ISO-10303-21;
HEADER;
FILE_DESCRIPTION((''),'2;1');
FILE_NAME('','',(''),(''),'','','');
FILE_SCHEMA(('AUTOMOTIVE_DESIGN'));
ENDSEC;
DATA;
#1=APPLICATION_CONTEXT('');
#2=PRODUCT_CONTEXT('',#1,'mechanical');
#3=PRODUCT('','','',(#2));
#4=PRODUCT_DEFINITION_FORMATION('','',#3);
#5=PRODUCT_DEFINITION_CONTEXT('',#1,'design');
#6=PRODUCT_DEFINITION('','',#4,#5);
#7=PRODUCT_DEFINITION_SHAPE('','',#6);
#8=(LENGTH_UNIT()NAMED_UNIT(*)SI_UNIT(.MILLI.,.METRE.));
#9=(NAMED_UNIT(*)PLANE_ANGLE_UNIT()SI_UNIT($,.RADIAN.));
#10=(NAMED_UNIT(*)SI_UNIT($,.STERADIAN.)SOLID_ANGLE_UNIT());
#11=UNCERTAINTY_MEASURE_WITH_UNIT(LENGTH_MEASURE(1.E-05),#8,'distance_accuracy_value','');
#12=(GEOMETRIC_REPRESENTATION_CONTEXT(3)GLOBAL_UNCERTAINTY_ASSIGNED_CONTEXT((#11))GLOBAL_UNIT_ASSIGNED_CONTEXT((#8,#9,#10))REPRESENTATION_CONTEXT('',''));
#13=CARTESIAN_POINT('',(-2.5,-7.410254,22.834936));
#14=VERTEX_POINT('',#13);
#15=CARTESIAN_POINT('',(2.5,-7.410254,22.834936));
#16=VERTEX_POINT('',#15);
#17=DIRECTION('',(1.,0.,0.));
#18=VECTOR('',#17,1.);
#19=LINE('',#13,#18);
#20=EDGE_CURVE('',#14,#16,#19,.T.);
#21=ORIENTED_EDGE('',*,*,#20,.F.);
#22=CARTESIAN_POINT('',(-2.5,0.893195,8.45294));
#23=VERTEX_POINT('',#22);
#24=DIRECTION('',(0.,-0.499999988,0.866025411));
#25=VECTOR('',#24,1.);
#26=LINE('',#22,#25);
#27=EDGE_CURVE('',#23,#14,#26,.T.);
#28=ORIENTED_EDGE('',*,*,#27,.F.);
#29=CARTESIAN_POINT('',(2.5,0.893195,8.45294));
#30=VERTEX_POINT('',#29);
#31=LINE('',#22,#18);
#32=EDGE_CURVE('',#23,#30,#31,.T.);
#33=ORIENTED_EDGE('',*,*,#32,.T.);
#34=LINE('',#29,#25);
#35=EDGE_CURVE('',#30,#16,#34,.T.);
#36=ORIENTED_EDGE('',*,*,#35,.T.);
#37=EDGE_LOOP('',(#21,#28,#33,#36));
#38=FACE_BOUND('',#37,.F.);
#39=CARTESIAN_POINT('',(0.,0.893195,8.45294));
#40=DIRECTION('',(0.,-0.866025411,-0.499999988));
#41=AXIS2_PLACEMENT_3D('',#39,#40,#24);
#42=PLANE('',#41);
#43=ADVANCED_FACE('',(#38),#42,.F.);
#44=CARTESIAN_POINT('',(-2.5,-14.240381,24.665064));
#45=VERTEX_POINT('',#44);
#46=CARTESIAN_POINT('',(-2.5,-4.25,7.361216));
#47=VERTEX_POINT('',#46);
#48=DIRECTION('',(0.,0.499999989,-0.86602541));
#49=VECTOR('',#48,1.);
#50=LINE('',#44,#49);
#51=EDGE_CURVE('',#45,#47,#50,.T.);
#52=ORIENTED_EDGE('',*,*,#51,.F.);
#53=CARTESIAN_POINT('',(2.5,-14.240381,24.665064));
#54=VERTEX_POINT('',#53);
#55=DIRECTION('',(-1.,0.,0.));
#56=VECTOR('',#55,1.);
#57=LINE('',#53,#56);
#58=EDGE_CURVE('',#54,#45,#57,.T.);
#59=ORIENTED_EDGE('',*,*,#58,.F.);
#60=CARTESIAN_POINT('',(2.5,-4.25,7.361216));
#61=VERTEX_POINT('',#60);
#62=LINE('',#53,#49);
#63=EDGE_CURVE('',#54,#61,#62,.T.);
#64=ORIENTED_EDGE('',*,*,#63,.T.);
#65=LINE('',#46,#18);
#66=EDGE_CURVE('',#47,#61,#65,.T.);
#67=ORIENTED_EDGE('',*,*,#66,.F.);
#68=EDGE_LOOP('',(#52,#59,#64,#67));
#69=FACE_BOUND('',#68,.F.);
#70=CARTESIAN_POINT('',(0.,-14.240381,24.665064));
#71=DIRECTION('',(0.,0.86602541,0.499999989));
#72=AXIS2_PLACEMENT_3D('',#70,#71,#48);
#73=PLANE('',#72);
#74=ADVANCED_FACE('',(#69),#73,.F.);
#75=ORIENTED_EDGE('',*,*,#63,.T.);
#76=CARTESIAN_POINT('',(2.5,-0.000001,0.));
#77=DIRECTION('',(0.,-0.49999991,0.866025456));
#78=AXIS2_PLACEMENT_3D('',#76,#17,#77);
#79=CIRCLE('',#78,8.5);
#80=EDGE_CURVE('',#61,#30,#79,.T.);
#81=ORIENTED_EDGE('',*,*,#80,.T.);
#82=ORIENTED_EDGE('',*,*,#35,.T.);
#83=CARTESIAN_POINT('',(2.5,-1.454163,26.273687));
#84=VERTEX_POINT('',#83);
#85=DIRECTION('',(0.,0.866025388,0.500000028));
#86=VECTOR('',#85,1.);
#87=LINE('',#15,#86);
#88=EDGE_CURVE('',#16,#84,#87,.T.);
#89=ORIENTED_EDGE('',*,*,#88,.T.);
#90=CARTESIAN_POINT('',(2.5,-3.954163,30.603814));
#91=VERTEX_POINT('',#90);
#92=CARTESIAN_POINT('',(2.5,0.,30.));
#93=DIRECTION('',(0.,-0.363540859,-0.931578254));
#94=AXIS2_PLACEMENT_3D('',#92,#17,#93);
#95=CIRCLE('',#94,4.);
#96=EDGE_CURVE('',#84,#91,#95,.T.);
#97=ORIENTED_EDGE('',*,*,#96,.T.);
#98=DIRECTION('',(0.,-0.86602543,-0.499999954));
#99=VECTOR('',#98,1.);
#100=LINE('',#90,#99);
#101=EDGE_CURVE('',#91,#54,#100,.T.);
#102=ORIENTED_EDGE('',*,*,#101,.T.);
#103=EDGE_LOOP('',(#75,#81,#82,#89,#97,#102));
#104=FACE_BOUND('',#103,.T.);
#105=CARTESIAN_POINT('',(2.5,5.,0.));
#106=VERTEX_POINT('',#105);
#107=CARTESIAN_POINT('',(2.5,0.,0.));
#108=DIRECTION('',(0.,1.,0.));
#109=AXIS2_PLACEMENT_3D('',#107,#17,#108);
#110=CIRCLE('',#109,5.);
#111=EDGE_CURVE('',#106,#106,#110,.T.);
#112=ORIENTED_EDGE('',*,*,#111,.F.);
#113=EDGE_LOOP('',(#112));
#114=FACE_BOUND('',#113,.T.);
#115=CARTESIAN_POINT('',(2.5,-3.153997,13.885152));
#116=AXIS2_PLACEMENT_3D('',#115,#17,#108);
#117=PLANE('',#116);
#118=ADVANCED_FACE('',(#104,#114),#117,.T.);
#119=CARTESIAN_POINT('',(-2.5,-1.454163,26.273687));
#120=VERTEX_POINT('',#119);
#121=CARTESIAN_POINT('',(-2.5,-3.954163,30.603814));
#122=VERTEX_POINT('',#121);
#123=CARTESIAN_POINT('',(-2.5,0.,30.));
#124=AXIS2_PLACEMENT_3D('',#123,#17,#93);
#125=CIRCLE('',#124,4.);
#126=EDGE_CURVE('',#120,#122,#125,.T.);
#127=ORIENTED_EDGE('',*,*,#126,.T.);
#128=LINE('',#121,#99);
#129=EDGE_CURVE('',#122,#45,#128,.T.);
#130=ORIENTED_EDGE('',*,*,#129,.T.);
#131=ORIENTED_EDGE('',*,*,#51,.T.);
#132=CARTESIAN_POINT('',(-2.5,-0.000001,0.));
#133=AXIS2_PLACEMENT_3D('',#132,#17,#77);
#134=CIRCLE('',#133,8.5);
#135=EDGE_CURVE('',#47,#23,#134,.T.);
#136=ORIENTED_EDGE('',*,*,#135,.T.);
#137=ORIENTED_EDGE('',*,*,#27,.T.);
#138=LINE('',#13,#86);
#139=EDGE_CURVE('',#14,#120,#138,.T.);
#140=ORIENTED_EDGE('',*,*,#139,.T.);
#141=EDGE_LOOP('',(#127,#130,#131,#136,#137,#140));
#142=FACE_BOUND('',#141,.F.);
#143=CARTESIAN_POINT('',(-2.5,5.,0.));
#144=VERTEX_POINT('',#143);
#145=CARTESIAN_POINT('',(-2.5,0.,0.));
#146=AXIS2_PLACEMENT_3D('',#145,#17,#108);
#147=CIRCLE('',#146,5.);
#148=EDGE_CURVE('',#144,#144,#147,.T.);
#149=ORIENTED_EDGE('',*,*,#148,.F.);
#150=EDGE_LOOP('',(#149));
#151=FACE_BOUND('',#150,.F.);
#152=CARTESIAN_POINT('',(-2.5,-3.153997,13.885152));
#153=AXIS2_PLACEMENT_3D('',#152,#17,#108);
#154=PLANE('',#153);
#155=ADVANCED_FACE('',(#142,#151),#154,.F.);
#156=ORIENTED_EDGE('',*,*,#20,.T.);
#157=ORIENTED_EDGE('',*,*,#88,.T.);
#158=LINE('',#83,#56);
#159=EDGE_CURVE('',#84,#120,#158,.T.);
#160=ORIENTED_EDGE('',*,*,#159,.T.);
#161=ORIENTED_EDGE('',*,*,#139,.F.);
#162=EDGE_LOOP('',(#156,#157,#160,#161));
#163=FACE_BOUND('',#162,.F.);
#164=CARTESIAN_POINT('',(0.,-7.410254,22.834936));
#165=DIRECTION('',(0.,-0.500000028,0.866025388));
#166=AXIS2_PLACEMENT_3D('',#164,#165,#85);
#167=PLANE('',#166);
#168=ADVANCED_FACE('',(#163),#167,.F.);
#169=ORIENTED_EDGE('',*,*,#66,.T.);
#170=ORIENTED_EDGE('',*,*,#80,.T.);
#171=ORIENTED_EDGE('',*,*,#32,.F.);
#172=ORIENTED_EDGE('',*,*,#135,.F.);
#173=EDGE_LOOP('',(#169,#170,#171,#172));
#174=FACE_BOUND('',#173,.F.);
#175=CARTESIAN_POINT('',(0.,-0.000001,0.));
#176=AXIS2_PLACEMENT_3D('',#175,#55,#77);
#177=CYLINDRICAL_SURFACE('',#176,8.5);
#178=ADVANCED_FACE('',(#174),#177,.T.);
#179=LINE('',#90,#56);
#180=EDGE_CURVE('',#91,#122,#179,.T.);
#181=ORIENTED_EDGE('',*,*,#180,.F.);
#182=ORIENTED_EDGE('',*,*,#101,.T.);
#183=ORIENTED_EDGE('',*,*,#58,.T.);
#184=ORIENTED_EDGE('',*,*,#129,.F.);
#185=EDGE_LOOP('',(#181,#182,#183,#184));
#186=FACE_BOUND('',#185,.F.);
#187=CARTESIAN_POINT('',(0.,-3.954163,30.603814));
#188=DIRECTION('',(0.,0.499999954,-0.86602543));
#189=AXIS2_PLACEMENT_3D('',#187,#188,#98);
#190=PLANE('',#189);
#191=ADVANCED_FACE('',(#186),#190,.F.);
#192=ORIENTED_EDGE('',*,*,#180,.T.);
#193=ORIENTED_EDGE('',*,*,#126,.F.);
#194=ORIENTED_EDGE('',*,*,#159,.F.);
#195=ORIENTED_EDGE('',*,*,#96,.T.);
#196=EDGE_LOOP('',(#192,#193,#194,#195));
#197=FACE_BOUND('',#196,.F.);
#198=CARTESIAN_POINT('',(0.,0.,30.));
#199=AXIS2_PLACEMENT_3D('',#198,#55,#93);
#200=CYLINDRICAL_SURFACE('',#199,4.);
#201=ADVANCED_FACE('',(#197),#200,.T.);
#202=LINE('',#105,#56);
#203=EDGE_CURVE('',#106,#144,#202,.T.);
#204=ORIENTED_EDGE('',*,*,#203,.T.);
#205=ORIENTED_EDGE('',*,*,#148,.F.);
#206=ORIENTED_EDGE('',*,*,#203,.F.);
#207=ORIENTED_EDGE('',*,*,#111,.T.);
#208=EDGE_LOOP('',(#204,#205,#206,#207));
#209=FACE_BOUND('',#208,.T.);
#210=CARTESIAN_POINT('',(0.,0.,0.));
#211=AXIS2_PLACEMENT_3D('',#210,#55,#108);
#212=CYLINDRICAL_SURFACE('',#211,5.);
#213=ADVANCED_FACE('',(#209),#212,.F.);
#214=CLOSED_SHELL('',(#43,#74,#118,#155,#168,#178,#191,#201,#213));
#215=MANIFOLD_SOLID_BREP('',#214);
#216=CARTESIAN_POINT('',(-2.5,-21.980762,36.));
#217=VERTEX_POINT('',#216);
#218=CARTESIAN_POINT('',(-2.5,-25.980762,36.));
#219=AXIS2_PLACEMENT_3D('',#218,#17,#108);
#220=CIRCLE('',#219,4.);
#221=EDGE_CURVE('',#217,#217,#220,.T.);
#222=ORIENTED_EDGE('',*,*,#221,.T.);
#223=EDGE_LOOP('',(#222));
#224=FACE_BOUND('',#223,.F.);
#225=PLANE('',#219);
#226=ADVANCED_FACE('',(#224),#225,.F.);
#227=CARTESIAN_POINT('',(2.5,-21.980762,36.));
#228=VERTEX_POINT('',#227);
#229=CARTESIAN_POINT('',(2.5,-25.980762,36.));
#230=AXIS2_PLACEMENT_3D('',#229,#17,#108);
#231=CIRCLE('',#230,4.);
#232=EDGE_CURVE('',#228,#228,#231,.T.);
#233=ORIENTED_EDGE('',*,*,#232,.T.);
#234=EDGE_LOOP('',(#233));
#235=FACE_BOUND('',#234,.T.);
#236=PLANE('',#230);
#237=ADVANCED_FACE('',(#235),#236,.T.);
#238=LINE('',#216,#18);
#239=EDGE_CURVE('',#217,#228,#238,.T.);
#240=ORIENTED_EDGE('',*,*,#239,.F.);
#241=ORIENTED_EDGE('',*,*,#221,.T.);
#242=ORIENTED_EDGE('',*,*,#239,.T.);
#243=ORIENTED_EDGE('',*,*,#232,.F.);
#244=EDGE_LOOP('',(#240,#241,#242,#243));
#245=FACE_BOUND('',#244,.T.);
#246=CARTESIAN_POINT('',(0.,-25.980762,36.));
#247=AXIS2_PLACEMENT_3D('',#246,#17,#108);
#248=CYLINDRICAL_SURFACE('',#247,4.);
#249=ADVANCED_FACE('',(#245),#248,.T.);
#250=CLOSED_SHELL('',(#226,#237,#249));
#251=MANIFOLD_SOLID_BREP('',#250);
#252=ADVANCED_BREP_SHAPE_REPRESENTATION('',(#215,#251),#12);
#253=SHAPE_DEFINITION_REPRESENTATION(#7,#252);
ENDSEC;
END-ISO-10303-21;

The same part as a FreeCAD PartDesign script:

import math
import FreeCAD as App
import Part
import Sketcher
Q = App.Units.Quantity

doc = App.newDocument("Part")
body = doc.addObject("PartDesign::Body", "Body")
body.AllowCompound = True

# Sketch on YZ plane
sketch1 = body.newObject("Sketcher::SketchObject", "Sketch")
sketch1.AttachmentSupport = (doc.getObject("YZ_Plane"), [""])
sketch1.MapMode = "FlatFace"
sketch1.addGeometry([
    Part.LineSegment(App.Vector(-14.240381, 24.665064, 0), App.Vector(-4.25, 7.361216, 0)),  # 0
    Part.ArcOfCircle(Part.Circle(App.Vector(-0.000001, 0, 0), App.Vector(0, 0, 1), 8.5), math.radians(119.999994), math.radians(443.968117)),  # 1
    Part.LineSegment(App.Vector(0.893195, 8.45294, 0), App.Vector(-7.410254, 22.834936, 0)),  # 2
    Part.LineSegment(App.Vector(-7.410254, 22.834936, 0), App.Vector(-1.454163, 26.273687, 0)),  # 3
    Part.ArcOfCircle(Part.Circle(App.Vector(0, 30, 0), App.Vector(0, 0, 1), 4), math.radians(-111.317812), math.radians(171.317812)),  # 4
    Part.LineSegment(App.Vector(-3.954163, 30.603814, 0), App.Vector(-14.240381, 24.665064, 0)),  # 5
    Part.Circle(App.Vector(0, 0, 0), App.Vector(0, 0, 1), 5),  # 6
    Part.Circle(App.Vector(-25.980762, 36, 0), App.Vector(0, 0, 1), 4),  # 7
], False)
sketch1.addConstraint([
    Sketcher.Constraint("Coincident", 0, 2, 1, 1),
    Sketcher.Constraint("Coincident", 1, 2, 2, 1),
    Sketcher.Constraint("Coincident", 2, 2, 3, 1),
    Sketcher.Constraint("Coincident", 3, 2, 4, 1),
    Sketcher.Constraint("Coincident", 4, 2, 5, 1),
    Sketcher.Constraint("Coincident", 5, 2, 0, 1),
    Sketcher.Constraint("Coincident", 1, 3, -1, 1),
    Sketcher.Constraint("Coincident", 6, 3, -1, 1),
    Sketcher.Constraint("Equal", 4, 7),
    Sketcher.Constraint("PointOnObject", 4, 3, -2),
    Sketcher.Constraint("Parallel", 0, 2),
    Sketcher.Constraint("Perpendicular", 2, 3),
    Sketcher.Constraint("Parallel", 3, 5),
    Sketcher.Constraint("Diameter", 6, Q("10 mm")),
    Sketcher.Constraint("Diameter", 7, Q("8 mm")),
    Sketcher.Constraint("Radius", 1, Q("8.5 mm")),
    Sketcher.Constraint("Angle", 0, Q("-60.000001 deg")),
    Sketcher.Constraint("DistanceY", -1, 1, 4, 3, Q("30 mm")),
    Sketcher.Constraint("DistanceY", -1, 1, 7, 3, Q("36 mm")),
    Sketcher.Constraint("DistanceX", 4, 2, 3, 2, Q("2.5 mm")),
    Sketcher.Constraint("DistanceX", 0, 2, -1, 1, Q("4.25 mm")),
    Sketcher.Constraint("Distance", 2, Q("16.606898 mm")),
    Sketcher.Constraint("Distance", 3, Q("6.877502 mm")),
    Sketcher.Constraint("DistanceX", 7, 3, 4, 2, Q("22.026599 mm")),
])
pad1 = body.newObject("PartDesign::Pad", "Pad")
pad1.Profile = sketch1
pad1.Length = 5
pad1.Midplane = True

doc.recompute()
